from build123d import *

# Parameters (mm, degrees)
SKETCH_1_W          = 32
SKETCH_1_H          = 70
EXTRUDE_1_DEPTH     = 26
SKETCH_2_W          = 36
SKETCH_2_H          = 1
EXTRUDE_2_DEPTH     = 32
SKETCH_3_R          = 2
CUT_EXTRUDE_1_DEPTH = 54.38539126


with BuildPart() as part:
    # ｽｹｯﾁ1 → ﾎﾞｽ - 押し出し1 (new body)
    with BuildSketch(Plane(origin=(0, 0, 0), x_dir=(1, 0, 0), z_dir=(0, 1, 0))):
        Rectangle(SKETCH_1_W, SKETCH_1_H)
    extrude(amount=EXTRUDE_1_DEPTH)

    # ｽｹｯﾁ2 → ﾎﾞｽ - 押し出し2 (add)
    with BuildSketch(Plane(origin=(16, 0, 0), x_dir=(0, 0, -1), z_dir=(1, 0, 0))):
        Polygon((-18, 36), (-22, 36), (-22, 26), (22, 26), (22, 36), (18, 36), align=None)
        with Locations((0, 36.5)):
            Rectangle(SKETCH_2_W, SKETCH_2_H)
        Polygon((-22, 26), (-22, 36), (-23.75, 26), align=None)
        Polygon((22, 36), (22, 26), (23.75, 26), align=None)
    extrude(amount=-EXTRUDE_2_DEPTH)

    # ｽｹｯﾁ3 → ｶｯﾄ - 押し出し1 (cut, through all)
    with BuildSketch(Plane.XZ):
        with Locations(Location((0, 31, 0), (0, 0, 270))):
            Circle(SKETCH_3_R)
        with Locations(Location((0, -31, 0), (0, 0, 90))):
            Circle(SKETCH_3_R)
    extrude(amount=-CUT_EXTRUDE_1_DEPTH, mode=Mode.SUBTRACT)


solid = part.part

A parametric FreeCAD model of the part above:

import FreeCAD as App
import Part
import Sketcher
from FreeCAD import Vector


def add_polygon(sketch, points):
    """Adds a closed chain of lines whose ends are joined by coincident constraints."""
    first, n = sketch.GeometryCount, len(points)
    for a, b in zip(points, points[1:] + points[:1]):
        sketch.addGeometry(Part.LineSegment(App.Vector(*a, 0), App.Vector(*b, 0)), False)
    for i in range(n):
        sketch.addConstraint(Sketcher.Constraint("Coincident", first + i, 2, first + (i + 1) % n, 1))

doc = App.newDocument("Part")
body = doc.addObject("PartDesign::Body", "Body")

# Sketch on XZ plane
sketch1 = body.newObject("Sketcher::SketchObject", "Sketch")
sketch1.AttachmentSupport = (doc.getObject("XZ_Plane"), [""])
sketch1.MapMode = "FlatFace"
add_polygon(sketch1, [(-16, -35), (-16, 35), (16, 35), (16, -35)])  # lines 0-3
sketch1.addConstraint(Sketcher.Constraint("Vertical", 0))
sketch1.addConstraint(Sketcher.Constraint("Horizontal", 1))
sketch1.addConstraint(Sketcher.Constraint("Vertical", 2))
sketch1.addConstraint(Sketcher.Constraint("Horizontal", 3))
sketch1.addConstraint(Sketcher.Constraint("Symmetric", 0, 2, 2, 2, -1, 1))
sketch1.addConstraint(Sketcher.Constraint("DistanceX", 1, 1, 1, 2, 32.0))
sketch1.addConstraint(Sketcher.Constraint("DistanceY", 0, 1, 0, 2, 70.0))
pad1 = body.newObject("PartDesign::Pad", "Pad")
pad1.Profile = sketch1
pad1.Length = 26
pad1.Reversed = True

# Sketch on YZ plane
sketch2 = body.newObject("Sketcher::SketchObject", "Sketch001")
sketch2.AttachmentSupport = (doc.getObject("YZ_Plane"), [""])
sketch2.MapMode = "FlatFace"
sketch2.AttachmentOffset = App.Placement(Vector(0, 0, 16), App.Rotation())
add_polygon(sketch2, [(36, -22), (36, -18), (37, -18), (37, 18), (36, 18), (36, 22), (26, 23.75), (26, -23.75)])  # lines 0-7
sketch2.addConstraint(Sketcher.Constraint("Vertical", 0))
sketch2.addConstraint(Sketcher.Constraint("Horizontal", 1))
sketch2.addConstraint(Sketcher.Constraint("Vertical", 2))
sketch2.addConstraint(Sketcher.Constraint("Horizontal", 3))
sketch2.addConstraint(Sketcher.Constraint("Vertical", 4))
sketch2.addConstraint(Sketcher.Constraint("Vertical", 6))
sketch2.addConstraint(Sketcher.Constraint("Symmetric", 0, 2, 3, 2, -1))
sketch2.addConstraint(Sketcher.Constraint("Equal", 0, 4))
sketch2.addConstraint(Sketcher.Constraint("Equal", 5, 7))
sketch2.addConstraint(Sketcher.Constraint("DistanceX", 1, 1, 1, 2, 1.0))
sketch2.addConstraint(Sketcher.Constraint("DistanceY", 0, 1, 0, 2, 4.0))
sketch2.addConstraint(Sketcher.Constraint("DistanceY", 2, 1, 2, 2, 36.0))
sketch2.addConstraint(Sketcher.Constraint("DistanceY", 6, 2, 6, 1, 47.5))
sketch2.addConstraint(Sketcher.Constraint("DistanceX", -1, 1, 0, 2, 36.0))
sketch2.addConstraint(Sketcher.Constraint("DistanceX", -1, 1, 5, 2, 26.0))
pad2 = body.newObject("PartDesign::Pad", "Pad001")
pad2.Profile = sketch2
pad2.Length = 32
pad2.Reversed = True

# Sketch on XZ plane
sketch3 = body.newObject("Sketcher::SketchObject", "Sketch002")
sketch3.AttachmentSupport = (doc.getObject("XZ_Plane"), [""])
sketch3.MapMode = "FlatFace"
sketch3.addGeometry(Part.Circle(Vector(0, 31, 0), Vector(0, 0, 1), 2), False)
sketch3.addGeometry(Part.Circle(Vector(0, -31, 0), Vector(0, 0, 1), 2), False)
sketch3.addConstraint(Sketcher.Constraint("Equal", 0, 1))
sketch3.addConstraint(Sketcher.Constraint("Symmetric", 0, 3, 1, 3, -1, 1))
sketch3.addConstraint(Sketcher.Constraint("PointOnObject", 0, 3, -2))
sketch3.addConstraint(Sketcher.Constraint("Diameter", 0, 4.0))
sketch3.addConstraint(Sketcher.Constraint("DistanceY", -1, 1, 0, 3, 31.0))
pocket1 = body.newObject("PartDesign::Pocket", "Pocket")
pocket1.Profile = sketch3
pocket1.Type = "ThroughAll"

doc.recompute()
